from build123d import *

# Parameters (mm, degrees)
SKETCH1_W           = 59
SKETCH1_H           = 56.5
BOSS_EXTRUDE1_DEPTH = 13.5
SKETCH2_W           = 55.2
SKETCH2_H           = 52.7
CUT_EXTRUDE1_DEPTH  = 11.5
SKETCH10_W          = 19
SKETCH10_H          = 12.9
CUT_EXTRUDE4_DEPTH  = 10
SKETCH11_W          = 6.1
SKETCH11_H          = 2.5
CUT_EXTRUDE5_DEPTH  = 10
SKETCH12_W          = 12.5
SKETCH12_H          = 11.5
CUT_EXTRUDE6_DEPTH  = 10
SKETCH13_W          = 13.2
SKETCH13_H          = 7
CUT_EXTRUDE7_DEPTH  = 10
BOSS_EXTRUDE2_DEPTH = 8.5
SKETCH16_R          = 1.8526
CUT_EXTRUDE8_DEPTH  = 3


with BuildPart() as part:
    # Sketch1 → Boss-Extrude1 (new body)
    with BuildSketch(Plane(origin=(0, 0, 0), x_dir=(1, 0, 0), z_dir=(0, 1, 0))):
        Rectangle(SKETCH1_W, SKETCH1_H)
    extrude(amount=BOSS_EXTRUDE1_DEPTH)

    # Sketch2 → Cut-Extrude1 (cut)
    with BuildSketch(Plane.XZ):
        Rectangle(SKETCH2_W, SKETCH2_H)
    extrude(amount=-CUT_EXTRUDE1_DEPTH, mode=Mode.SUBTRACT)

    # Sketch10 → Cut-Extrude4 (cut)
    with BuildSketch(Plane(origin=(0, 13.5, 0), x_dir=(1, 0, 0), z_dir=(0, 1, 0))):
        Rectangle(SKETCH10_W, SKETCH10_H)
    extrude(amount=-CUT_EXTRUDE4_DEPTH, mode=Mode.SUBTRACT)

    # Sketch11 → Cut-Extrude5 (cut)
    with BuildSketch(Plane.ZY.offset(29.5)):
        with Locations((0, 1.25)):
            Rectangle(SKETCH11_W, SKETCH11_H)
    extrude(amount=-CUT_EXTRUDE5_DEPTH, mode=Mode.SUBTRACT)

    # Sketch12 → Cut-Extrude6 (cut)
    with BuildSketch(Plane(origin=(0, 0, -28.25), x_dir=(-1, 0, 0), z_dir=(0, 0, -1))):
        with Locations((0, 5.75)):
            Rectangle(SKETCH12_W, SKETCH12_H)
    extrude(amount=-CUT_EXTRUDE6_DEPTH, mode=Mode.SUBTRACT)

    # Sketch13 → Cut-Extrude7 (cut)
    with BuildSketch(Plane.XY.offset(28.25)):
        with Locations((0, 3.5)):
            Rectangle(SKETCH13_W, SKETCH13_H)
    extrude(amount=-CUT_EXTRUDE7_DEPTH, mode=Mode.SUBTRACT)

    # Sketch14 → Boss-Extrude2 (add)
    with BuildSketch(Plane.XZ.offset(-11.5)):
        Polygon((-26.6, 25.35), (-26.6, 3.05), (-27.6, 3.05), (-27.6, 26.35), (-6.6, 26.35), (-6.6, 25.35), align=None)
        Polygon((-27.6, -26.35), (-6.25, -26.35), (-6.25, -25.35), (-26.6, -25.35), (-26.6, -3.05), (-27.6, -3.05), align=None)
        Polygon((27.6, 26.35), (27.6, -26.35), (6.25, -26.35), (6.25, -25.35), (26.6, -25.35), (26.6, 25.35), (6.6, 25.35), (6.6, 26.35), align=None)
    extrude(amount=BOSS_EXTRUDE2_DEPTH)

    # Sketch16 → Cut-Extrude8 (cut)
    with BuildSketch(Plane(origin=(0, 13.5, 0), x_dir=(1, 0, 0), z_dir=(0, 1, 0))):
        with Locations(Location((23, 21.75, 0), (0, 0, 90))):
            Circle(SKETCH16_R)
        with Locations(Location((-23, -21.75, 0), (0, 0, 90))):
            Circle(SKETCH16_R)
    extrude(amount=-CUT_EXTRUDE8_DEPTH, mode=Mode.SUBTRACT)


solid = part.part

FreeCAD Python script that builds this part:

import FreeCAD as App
import Part
import Sketcher
Q = App.Units.Quantity


def add_polygon(sketch, points):
    """Adds a closed chain of lines whose ends are joined by coincident constraints."""
    first, n = sketch.GeometryCount, len(points)
    for a, b in zip(points, points[1:] + points[:1]):
        sketch.addGeometry(Part.LineSegment(App.Vector(*a, 0), App.Vector(*b, 0)), False)
    for i in range(n):
        sketch.addConstraint(Sketcher.Constraint("Coincident", first + i, 2, first + (i + 1) % n, 1))

doc = App.newDocument("Part")
body = doc.addObject("PartDesign::Body", "Body")

# Sketch on XZ plane
sketch1 = doc.addObject("Sketcher::SketchObject", "Sketch")
body.addObject(sketch1)
sketch1.AttachmentSupport = (doc.XZ_Plane, [""])
sketch1.MapMode = "FlatFace"
add_polygon(sketch1, [(-30, -28), (-30, 28), (30, 28), (30, -28)])  # lines 0-3
sketch1.addConstraint(Sketcher.Constraint("Vertical", 0))
sketch1.addConstraint(Sketcher.Constraint("Horizontal", 1))
sketch1.addConstraint(Sketcher.Constraint("Vertical", 2))
sketch1.addConstraint(Sketcher.Constraint("Horizontal", 3))
sketch1.addConstraint(Sketcher.Constraint("Symmetric", 0, 2, 2, 2, -1, 1))
sketch1.addConstraint(Sketcher.Constraint("DistanceX", 1, 1, 1, 2, Q("59 mm")))
sketch1.addConstraint(Sketcher.Constraint("DistanceY", 0, 1, 0, 2, Q("56.5 mm")))
pad1 = doc.addObject("PartDesign::Pad", "Pad")
body.addObject(pad1)
pad1.Profile = sketch1
pad1.Length = 13.5
pad1.Reversed = True

# Sketch on XZ plane
sketch2 = doc.addObject("Sketcher::SketchObject", "Sketch001")
body.addObject(sketch2)
sketch2.AttachmentSupport = (doc.XZ_Plane, [""])
sketch2.MapMode = "FlatFace"
add_polygon(sketch2, [(-28, 26), (-28, -26), (28, -26), (28, 26)])  # lines 0-3
sketch2.addConstraint(Sketcher.Constraint("Vertical", 0))
sketch2.addConstraint(Sketcher.Constraint("Horizontal", 1))
sketch2.addConstraint(Sketcher.Constraint("Vertical", 2))
sketch2.addConstraint(Sketcher.Constraint("Horizontal", 3))
sketch2.addConstraint(Sketcher.Constraint("Symmetric", 0, 2, 2, 2, -1, 1))
sketch2.addConstraint(Sketcher.Constraint("DistanceX", 1, 1, 1, 2, Q("55.2 mm")))
sketch2.addConstraint(Sketcher.Constraint("DistanceY", 0, 2, 0, 1, Q("52.7 mm")))
pocket1 = doc.addObject("PartDesign::Pocket", "Pocket")
body.addObject(pocket1)
pocket1.Profile = sketch2
pocket1.Length = 11.5

# Sketch on XZ plane
sketch3 = doc.addObject("Sketcher::SketchObject", "Sketch002")
body.addObject(sketch3)
sketch3.AttachmentSupport = (doc.XZ_Plane, [""])
sketch3.MapMode = "FlatFace"
sketch3.AttachmentOffset = App.Placement(App.Vector(0, 0, -13.5), App.Rotation())
add_polygon(sketch3, [(-10, -6), (-10, 6), (10, 6), (10, -6)])  # lines 0-3
sketch3.addConstraint(Sketcher.Constraint("Vertical", 0))
sketch3.addConstraint(Sketcher.Constraint("Horizontal", 1))
sketch3.addConstraint(Sketcher.Constraint("Vertical", 2))
sketch3.addConstraint(Sketcher.Constraint("Horizontal", 3))
sketch3.addConstraint(Sketcher.Constraint("Symmetric", 0, 2, 2, 2, -1, 1))
sketch3.addConstraint(Sketcher.Constraint("DistanceX", 1, 1, 1, 2, Q("19 mm")))
sketch3.addConstraint(Sketcher.Constraint("DistanceY", 0, 1, 0, 2, Q("12.9 mm")))
pocket2 = doc.addObject("PartDesign::Pocket", "Pocket001")
body.addObject(pocket2)
pocket2.Profile = sketch3
pocket2.Length = 10
pocket2.Reversed = True

# Sketch on YZ plane
sketch4 = doc.addObject("Sketcher::SketchObject", "Sketch003")
body.addObject(sketch4)
sketch4.AttachmentSupport = (doc.YZ_Plane, [""])
sketch4.MapMode = "FlatFace"
sketch4.AttachmentOffset = App.Placement(App.Vector(0, 0, -29.5), App.Rotation())
add_polygon(sketch4, [(2.5, -3), (0, -3), (0, 3), (2.5, 3)])  # lines 0-3
sketch4.addConstraint(Sketcher.Constraint("Horizontal", 0))
sketch4.addConstraint(Sketcher.Constraint("Vertical", 1))
sketch4.addConstraint(Sketcher.Constraint("Horizontal", 2))
sketch4.addConstraint(Sketcher.Constraint("Vertical", 3))
sketch4.addConstraint(Sketcher.Constraint("Symmetric", 0, 2, 1, 2, -1, 1))
sketch4.addConstraint(Sketcher.Constraint("DistanceX", 0, 2, 0, 1, Q("2.5 mm")))
sketch4.addConstraint(Sketcher.Constraint("DistanceY", 1, 1, 1, 2, Q("6.1 mm")))
pocket3 = doc.addObject("PartDesign::Pocket", "Pocket002")
body.addObject(pocket3)
pocket3.Profile = sketch4
pocket3.Length = 10
pocket3.Reversed = True

# Sketch on XY plane
sketch5 = doc.addObject("Sketcher::SketchObject", "Sketch004")
body.addObject(sketch5)
sketch5.AttachmentSupport = (doc.XY_Plane, [""])
sketch5.MapMode = "FlatFace"
sketch5.AttachmentOffset = App.Placement(App.Vector(0, 0, -28.25), App.Rotation())
add_polygon(sketch5, [(6, 12), (6, 0), (-6, 0), (-6, 12)])  # lines 0-3
sketch5.addConstraint(Sketcher.Constraint("Vertical", 0))
sketch5.addConstraint(Sketcher.Constraint("Horizontal", 1))
sketch5.addConstraint(Sketcher.Constraint("Vertical", 2))
sketch5.addConstraint(Sketcher.Constraint("Horizontal", 3))
sketch5.addConstraint(Sketcher.Constraint("Symmetric", 0, 2, 1, 2, -1, 1))
sketch5.addConstraint(Sketcher.Constraint("DistanceX", 1, 2, 1, 1, Q("12.5 mm")))
sketch5.addConstraint(Sketcher.Constraint("DistanceY", 0, 2, 0, 1, Q("11.5 mm")))
pocket4 = doc.addObject("PartDesign::Pocket", "Pocket003")
body.addObject(pocket4)
pocket4.Profile = sketch5
pocket4.Length = 10
pocket4.Reversed = True

# Sketch on XY plane
sketch6 = doc.addObject("Sketcher::SketchObject", "Sketch005")
body.addObject(sketch6)
sketch6.AttachmentSupport = (doc.XY_Plane, [""])
sketch6.MapMode = "FlatFace"
sketch6.AttachmentOffset = App.Placement(App.Vector(0, 0, 28.25), App.Rotation())
add_polygon(sketch6, [(-7, 7), (-7, 0), (7, 0), (7, 7)])  # lines 0-3
sketch6.addConstraint(Sketcher.Constraint("Vertical", 0))
sketch6.addConstraint(Sketcher.Constraint("Horizontal", 1))
sketch6.addConstraint(Sketcher.Constraint("Vertical", 2))
sketch6.addConstraint(Sketcher.Constraint("Horizontal", 3))
sketch6.addConstraint(Sketcher.Constraint("Symmetric", 0, 2, 1, 2, -1, 1))
sketch6.addConstraint(Sketcher.Constraint("DistanceY", 0, 2, 0, 1, Q("7 mm")))
sketch6.addConstraint(Sketcher.Constraint("DistanceX", 1, 1, 1, 2, Q("13.2 mm")))
pocket5 = doc.addObject("PartDesign::Pocket", "Pocket004")
body.addObject(pocket5)
pocket5.Profile = sketch6
pocket5.Length = 10

# Sketch on XZ plane
sketch7 = doc.addObject("Sketcher::SketchObject", "Sketch006")
body.addObject(sketch7)
sketch7.AttachmentSupport = (doc.XZ_Plane, [""])
sketch7.MapMode = "FlatFace"
sketch7.AttachmentOffset = App.Placement(App.Vector(0, 0, -11.5), App.Rotation())
add_polygon(sketch7, [(-26.6, 3), (-26.6, 25.4), (-6.6, 25.4), (-6.6, 26.4), (-27.6, 26.4), (-27.6, 3)])  # lines 0-5
add_polygon(sketch7, [(-27.6, -26.4), (-6.2, -26.4), (-6.2, -25.4), (-26.6, -25.4), (-26.6, -3), (-27.6, -3)])  # lines 6-11
add_polygon(sketch7, [(27.6, -26.4), (27.6, 26.4), (6.6, 26.4), (6.6, 25.4), (26.6, 25.4), (26.6, -25.4), (6.2, -25.4), (6.2, -26.4)])  # lines 12-19
sketch7.addConstraint(Sketcher.Constraint("Vertical", 0))
sketch7.addConstraint(Sketcher.Constraint("Horizontal", 1))
sketch7.addConstraint(Sketcher.Constraint("Vertical", 2))
sketch7.addConstraint(Sketcher.Constraint("Horizontal", 3))
sketch7.addConstraint(Sketcher.Constraint("Vertical", 4))
sketch7.addConstraint(Sketcher.Constraint("Horizontal", 5))
sketch7.addConstraint(Sketcher.Constraint("Horizontal", 6))
sketch7.addConstraint(Sketcher.Constraint("Vertical", 7))
sketch7.addConstraint(Sketcher.Constraint("Horizontal", 8))
sketch7.addConstraint(Sketcher.Constraint("Vertical", 9))
sketch7.addConstraint(Sketcher.Constraint("Horizontal", 10))
sketch7.addConstraint(Sketcher.Constraint("Vertical", 11))
sketch7.addConstraint(Sketcher.Constraint("Vertical", 12))
sketch7.addConstraint(Sketcher.Constraint("Horizontal", 13))
sketch7.addConstraint(Sketcher.Constraint("Vertical", 14))
sketch7.addConstraint(Sketcher.Constraint("Horizontal", 15))
sketch7.addConstraint(Sketcher.Constraint("Vertical", 16))
sketch7.addConstraint(Sketcher.Constraint("Horizontal", 17))
sketch7.addConstraint(Sketcher.Constraint("Vertical", 18))
sketch7.addConstraint(Sketcher.Constraint("Horizontal", 19))
sketch7.addConstraint(Sketcher.Constraint("Symmetric", 11, 2, 12, 2, -1, 1))
sketch7.addConstraint(Sketcher.Constraint("Symmetric", 8, 2, 15, 2, -1, 1))
sketch7.addConstraint(Sketcher.Constraint("Symmetric", 0, 2, 16, 2, -1, 1))
sketch7.addConstraint(Sketcher.Constraint("Symmetric", 3, 2, 19, 2, -1, 1))
sketch7.addConstraint(Sketcher.Constraint("Symmetric", 2, 2, 13, 2, -2))
sketch7.addConstraint(Sketcher.Constraint("Symmetric", 7, 2, 17, 2, -2))
sketch7.addConstraint(Sketcher.Constraint("Equal", 10, 2))
sketch7.addConstraint(Sketcher.Constraint("Equal", 0, 9))
sketch7.addConstraint(Sketcher.Constraint("DistanceX", 1, 1, 1, 2, Q("20 mm")))
sketch7.addConstraint(Sketcher.Constraint("DistanceX", 3, 2, 3, 1, Q("21 mm")))
sketch7.addConstraint(Sketcher.Constraint("DistanceY", 0, 1, 0, 2, Q("22.3 mm")))
sketch7.addConstraint(Sketcher.Constraint("DistanceY", 12, 1, 12, 2, Q("52.7 mm")))
sketch7.addConstraint(Sketcher.Constraint("DistanceX", 6, 1, 6, 2, Q("21.35 mm")))
sketch7.addConstraint(Sketcher.Constraint("DistanceX", 0, 2, -1, 1, Q("26.6 mm")))
pad2 = doc.addObject("PartDesign::Pad", "Pad001")
body.addObject(pad2)
pad2.Profile = sketch7
pad2.Length = 8.5

# Sketch on XZ plane
sketch8 = doc.addObject("Sketcher::SketchObject", "Sketch007")
body.addObject(sketch8)
sketch8.AttachmentSupport = (doc.XZ_Plane, [""])
sketch8.MapMode = "FlatFace"
sketch8.AttachmentOffset = App.Placement(App.Vector(0, 0, -13.5), App.Rotation())
sketch8.addGeometry(Part.Circle(App.Vector(23, -21.8, 0), App.Vector(0, 0, 1), 1.9), False)
sketch8.addGeometry(Part.Circle(App.Vector(-23, 21.8, 0), App.Vector(0, 0, 1), 1.9), False)
sketch8.addConstraint(Sketcher.Constraint("Equal", 0, 1))
sketch8.addConstraint(Sketcher.Constraint("Symmetric", 0, 3, 1, 3, -1, 1))
sketch8.addConstraint(Sketcher.Constraint("DistanceX", -1, 1, 0, 3, Q("23 mm")))
sketch8.addConstraint(Sketcher.Constraint("Diameter", 0, Q("3.7052 mm")))
sketch8.addConstraint(Sketcher.Constraint("DistanceY", 0, 3, 1, 3, Q("43.5 mm")))
pocket6 = doc.addObject("PartDesign::Pocket", "Pocket005")
body.addObject(pocket6)
pocket6.Profile = sketch8
pocket6.Length = 3
pocket6.Reversed = True

doc.recompute()
